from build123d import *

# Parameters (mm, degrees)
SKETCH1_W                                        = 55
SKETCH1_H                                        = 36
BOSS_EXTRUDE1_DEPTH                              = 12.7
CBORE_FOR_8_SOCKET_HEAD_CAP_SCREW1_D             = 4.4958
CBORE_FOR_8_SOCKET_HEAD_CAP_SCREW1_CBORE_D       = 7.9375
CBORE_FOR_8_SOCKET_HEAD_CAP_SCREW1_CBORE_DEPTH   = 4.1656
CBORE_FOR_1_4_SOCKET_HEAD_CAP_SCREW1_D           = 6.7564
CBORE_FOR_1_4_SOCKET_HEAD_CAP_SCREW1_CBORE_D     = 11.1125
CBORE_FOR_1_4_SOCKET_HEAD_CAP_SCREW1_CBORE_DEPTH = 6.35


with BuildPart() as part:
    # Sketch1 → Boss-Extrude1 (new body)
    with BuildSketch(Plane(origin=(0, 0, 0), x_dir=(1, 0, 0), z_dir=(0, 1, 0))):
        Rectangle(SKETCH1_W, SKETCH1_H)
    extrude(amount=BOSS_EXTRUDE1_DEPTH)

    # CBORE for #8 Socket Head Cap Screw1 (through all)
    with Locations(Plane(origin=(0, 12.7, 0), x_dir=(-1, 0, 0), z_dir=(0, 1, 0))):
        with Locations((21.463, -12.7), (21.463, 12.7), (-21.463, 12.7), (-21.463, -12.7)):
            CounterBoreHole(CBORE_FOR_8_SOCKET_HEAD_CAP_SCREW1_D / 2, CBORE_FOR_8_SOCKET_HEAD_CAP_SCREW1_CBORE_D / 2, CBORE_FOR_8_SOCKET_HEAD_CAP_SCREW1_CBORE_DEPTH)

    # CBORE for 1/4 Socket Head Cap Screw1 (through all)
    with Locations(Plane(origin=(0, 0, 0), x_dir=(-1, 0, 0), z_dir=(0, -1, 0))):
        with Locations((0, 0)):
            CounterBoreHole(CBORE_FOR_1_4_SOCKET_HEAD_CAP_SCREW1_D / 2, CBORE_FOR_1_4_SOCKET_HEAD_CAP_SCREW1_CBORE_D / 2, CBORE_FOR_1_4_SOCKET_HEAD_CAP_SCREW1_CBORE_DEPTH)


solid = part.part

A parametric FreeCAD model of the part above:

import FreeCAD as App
import Part
import Sketcher

V = App.Vector
Q = App.Units.Quantity


def add_polygon(sketch, points):
    """Adds a closed chain of lines whose ends are joined by coincident constraints."""
    first, n = sketch.GeometryCount, len(points)
    for a, b in zip(points, points[1:] + points[:1]):
        sketch.addGeometry(Part.LineSegment(App.Vector(*a, 0), App.Vector(*b, 0)), False)
    for i in range(n):
        sketch.addConstraint(Sketcher.Constraint("Coincident", first + i, 2, first + (i + 1) % n, 1))

doc = App.newDocument("Part")
body = doc.addObject("PartDesign::Body", "Body")

sketch1 = body.newObject("Sketcher::SketchObject", "Sketch")
sketch1.AttachmentSupport = (doc.getObject("XZ_Plane"), [""])
sketch1.MapMode = "FlatFace"
add_polygon(sketch1, [(-28, -18), (-28, 18), (28, 18), (28, -18)])
sketch1.addConstraint([
    Sketcher.Constraint("Vertical", 0),
    Sketcher.Constraint("Horizontal", 1),
    Sketcher.Constraint("Vertical", 2),
    Sketcher.Constraint("Horizontal", 3),
    Sketcher.Constraint("Symmetric", 0, 2, 2, 2, -1, 1),
    Sketcher.Constraint("DistanceX", 1, 1, 1, 2, Q("55 mm")),
    Sketcher.Constraint("DistanceY", 0, 1, 0, 2, Q("36 mm")),
])
pad1 = body.newObject("PartDesign::Pad", "Pad")
pad1.Profile = sketch1
pad1.Length = Q("0.5 in")
pad1.Reversed = True

sketch2 = body.newObject("Sketcher::SketchObject", "Sketch001")
sketch2.AttachmentSupport = (doc.getObject("XZ_Plane"), [""])
sketch2.MapMode = "FlatFace"
sketch2.AttachmentOffset = App.Placement(V(0, 0, -0.5 * 25.4), App.Rotation())
sketch2.addGeometry([
    Part.Circle(V(-21.5, -12.7, 0), V(0, 0, 1), 2.2),
    Part.Circle(V(-21.5, 12.7, 0), V(0, 0, 1), 2.2),
    Part.Circle(V(21.5, 12.7, 0), V(0, 0, 1), 2.2),
    Part.Circle(V(21.5, -12.7, 0), V(0, 0, 1), 2.2),
], False)
sketch2.addConstraint([
    Sketcher.Constraint("Equal", 0, 1),
    Sketcher.Constraint("Equal", 1, 2),
    Sketcher.Constraint("Equal", 2, 3),
    Sketcher.Constraint("Symmetric", 0, 3, 2, 3, -1, 1),
    Sketcher.Constraint("Symmetric", 1, 3, 3, 3, -1, 1),
    Sketcher.Constraint("Symmetric", 1, 3, 2, 3, -2),
    Sketcher.Constraint("Diameter", 0, Q("0.177 in")),
    Sketcher.Constraint("DistanceY", 0, 3, 1, 3, Q("1 in")),
    Sketcher.Constraint("DistanceX", 1, 3, 2, 3, Q("1.69 in")),
])
doc.recompute()
hole = body.newObject("PartDesign::Hole", "Hole")
hole.Profile = sketch2
hole.ThreadType = "None"
hole.Diameter = Q("0.177 in")
hole.DepthType = "ThroughAll"
hole.HoleCutType = "Counterbore"
hole.HoleCutDiameter = Q("0.3125 in")
hole.HoleCutDepth = Q("0.164 in")
hole.Reversed = True

sketch3 = body.newObject("Sketcher::SketchObject", "Sketch002")
sketch3.AttachmentSupport = (doc.getObject("XZ_Plane"), [""])
sketch3.MapMode = "FlatFace"
sketch3.addGeometry(Part.Circle(V(0, 0, 0), V(0, 0, 1), 3.4), False)
sketch3.addConstraint([
    Sketcher.Constraint("Coincident", 0, 3, -1, 1),
    Sketcher.Constraint("Diameter", 0, Q("0.266 in")),
])
doc.recompute()
hole2 = body.newObject("PartDesign::Hole", "Hole001")
hole2.Profile = sketch3
hole2.ThreadType = "None"
hole2.Diameter = Q("0.266 in")
hole2.DepthType = "ThroughAll"
hole2.HoleCutType = "Counterbore"
hole2.HoleCutDiameter = Q("0.4375 in")
hole2.HoleCutDepth = Q("0.25 in")

doc.recompute()
